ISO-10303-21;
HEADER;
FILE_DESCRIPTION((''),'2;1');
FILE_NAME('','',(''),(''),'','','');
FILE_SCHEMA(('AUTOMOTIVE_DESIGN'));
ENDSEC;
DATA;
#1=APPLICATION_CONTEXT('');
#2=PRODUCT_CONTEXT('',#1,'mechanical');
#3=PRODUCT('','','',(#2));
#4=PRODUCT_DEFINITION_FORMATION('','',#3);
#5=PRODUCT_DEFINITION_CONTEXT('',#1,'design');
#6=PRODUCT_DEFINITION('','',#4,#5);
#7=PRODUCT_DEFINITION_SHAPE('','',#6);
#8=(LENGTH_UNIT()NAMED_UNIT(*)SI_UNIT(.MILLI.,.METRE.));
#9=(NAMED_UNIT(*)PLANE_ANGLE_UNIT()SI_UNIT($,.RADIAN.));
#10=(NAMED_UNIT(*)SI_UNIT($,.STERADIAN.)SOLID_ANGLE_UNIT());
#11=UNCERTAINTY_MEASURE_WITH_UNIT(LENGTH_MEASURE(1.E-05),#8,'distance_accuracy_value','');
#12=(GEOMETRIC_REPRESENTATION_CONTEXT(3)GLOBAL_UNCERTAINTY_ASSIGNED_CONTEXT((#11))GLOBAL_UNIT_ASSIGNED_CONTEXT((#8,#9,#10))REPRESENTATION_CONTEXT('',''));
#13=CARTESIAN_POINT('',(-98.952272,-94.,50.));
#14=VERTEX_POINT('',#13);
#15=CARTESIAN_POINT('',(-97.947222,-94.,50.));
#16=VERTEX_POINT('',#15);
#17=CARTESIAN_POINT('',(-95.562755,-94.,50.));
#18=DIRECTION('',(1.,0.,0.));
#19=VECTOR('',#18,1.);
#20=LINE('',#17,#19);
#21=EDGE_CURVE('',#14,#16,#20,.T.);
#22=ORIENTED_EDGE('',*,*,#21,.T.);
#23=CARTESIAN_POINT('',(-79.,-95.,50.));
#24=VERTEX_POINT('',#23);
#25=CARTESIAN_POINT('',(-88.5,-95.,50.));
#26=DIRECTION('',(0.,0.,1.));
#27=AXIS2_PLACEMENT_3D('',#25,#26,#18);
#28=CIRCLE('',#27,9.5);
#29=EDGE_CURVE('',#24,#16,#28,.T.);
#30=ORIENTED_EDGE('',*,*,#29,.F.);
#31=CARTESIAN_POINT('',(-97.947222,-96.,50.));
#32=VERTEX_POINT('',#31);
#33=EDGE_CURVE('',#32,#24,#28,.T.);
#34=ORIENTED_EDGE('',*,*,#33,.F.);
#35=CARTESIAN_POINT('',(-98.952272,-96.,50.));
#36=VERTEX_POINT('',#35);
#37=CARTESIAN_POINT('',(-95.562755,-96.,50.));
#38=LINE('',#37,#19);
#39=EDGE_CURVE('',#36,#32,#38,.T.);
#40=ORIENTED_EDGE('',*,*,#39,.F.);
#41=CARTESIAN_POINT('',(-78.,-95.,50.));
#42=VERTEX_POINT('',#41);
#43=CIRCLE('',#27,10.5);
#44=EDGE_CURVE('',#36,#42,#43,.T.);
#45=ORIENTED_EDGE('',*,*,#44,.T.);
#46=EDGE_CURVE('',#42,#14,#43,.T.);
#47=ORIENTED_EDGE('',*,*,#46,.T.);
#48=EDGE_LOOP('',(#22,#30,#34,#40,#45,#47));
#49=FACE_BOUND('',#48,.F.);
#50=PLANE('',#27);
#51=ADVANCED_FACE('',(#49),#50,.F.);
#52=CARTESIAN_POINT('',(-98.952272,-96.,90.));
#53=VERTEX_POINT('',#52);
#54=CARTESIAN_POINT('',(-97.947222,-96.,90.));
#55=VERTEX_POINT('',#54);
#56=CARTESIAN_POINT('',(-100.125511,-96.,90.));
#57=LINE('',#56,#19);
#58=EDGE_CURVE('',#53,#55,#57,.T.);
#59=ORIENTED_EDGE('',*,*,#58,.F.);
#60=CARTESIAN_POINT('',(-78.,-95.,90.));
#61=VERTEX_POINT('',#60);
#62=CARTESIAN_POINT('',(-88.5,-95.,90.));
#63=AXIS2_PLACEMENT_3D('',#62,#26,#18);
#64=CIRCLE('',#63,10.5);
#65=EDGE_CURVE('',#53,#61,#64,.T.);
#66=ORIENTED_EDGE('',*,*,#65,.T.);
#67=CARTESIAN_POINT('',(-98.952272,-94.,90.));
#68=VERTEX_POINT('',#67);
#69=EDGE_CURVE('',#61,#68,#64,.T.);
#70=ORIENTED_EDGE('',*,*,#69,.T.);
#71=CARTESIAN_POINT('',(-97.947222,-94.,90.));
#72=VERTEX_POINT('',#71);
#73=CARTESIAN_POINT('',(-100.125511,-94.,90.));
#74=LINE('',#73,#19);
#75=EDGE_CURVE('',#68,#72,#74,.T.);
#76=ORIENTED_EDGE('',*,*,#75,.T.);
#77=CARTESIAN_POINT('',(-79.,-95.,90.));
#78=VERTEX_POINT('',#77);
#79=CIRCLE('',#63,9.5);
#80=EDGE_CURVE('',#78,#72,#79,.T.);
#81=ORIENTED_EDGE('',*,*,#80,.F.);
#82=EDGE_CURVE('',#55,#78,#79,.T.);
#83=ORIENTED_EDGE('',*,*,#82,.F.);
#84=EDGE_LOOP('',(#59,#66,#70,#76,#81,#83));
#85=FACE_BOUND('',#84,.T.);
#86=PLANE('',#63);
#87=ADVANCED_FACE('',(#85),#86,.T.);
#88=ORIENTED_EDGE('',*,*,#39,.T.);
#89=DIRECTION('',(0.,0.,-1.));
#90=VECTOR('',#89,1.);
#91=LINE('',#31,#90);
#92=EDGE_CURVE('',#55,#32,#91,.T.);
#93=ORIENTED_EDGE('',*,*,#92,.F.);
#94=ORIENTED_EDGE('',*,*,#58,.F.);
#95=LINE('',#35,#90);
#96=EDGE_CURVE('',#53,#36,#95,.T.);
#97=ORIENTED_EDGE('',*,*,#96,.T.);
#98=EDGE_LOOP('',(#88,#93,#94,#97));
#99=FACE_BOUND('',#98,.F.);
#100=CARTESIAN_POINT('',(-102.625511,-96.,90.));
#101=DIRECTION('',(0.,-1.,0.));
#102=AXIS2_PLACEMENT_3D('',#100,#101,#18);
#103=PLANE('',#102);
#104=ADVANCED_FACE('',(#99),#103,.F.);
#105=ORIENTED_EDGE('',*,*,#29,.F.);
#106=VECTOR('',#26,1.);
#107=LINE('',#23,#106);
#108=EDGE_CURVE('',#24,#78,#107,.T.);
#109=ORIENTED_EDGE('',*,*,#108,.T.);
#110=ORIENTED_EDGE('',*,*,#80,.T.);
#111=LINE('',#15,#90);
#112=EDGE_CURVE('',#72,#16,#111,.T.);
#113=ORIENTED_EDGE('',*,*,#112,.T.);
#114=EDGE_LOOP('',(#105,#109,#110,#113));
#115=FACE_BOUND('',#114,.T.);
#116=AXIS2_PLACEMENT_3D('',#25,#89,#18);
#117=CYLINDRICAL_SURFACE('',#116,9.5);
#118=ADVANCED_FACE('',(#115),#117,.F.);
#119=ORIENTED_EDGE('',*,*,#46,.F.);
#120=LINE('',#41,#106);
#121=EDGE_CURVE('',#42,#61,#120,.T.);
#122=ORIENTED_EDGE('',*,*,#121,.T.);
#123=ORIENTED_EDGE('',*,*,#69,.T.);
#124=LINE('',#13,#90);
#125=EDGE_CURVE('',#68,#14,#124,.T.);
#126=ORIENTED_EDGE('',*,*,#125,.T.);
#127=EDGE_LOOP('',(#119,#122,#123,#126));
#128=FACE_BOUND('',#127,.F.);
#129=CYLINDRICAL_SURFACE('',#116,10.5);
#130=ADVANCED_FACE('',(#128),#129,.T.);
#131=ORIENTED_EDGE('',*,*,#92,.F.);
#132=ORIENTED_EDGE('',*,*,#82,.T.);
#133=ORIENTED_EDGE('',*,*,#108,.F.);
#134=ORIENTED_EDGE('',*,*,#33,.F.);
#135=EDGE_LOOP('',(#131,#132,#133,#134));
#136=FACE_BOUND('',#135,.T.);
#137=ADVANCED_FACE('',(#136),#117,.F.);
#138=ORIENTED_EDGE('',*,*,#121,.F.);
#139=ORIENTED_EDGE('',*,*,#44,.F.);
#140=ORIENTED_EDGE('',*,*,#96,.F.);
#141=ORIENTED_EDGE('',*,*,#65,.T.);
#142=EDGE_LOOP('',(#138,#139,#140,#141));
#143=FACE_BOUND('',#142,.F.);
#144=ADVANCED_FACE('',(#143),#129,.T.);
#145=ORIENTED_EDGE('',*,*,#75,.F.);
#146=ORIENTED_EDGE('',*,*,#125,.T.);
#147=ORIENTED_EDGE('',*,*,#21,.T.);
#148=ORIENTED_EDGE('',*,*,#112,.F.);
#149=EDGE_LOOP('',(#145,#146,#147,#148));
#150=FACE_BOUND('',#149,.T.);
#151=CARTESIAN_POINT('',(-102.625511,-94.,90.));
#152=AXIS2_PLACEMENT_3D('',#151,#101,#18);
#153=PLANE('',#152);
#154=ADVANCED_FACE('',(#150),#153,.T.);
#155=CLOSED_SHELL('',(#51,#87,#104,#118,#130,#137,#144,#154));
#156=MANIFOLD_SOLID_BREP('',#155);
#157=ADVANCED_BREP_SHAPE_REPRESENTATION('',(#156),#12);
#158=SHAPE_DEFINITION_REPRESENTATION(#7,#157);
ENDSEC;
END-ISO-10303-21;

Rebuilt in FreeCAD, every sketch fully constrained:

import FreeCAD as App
import Part
import Sketcher

V = App.Vector

doc = App.newDocument("Part")
body = doc.addObject("PartDesign::Body", "Body")

sketch1 = doc.addObject("Sketcher::SketchObject", "Sketch")
body.addObject(sketch1)
sketch1.AttachmentSupport = (doc.XY_Plane, [""])
sketch1.MapMode = "FlatFace"
sketch1.addGeometry(Part.Circle(V(-88, -95, 0), V(0, 0, 1), 10), False)
sketch1.addGeometry(Part.Circle(V(-88, -95, 0), V(0, 0, 1), 10), False)
sketch1.addConstraint(Sketcher.Constraint("Coincident", 1, 3, 0, 3))
sketch1.addConstraint(Sketcher.Constraint("Diameter", 0, 21.0))
sketch1.addConstraint(Sketcher.Constraint("Diameter", 1, 19.0))
sketch1.addConstraint(Sketcher.Constraint("DistanceY", 0, 3, -1, 1, 95.0))
sketch1.addConstraint(Sketcher.Constraint("DistanceX", 0, 3, -1, 1, 88.5))
pad1 = doc.addObject("PartDesign::Pad", "Pad")
body.addObject(pad1)
pad1.Profile = sketch1
pad1.Length = 40

sketch2 = doc.addObject("Sketcher::SketchObject", "Sketch001")
body.addObject(sketch2)
sketch2.AttachmentSupport = (doc.XY_Plane, [""])
sketch2.MapMode = "FlatFace"
sketch2.AttachmentOffset = App.Placement(V(0, 0, 40), App.Rotation())
sketch2.addGeometry(Part.LineSegment(V(-102.6, -94, 0), V(-102.6, -96, 0)), False)
sketch2.addGeometry(Part.LineSegment(V(-102.6, -96, 0), V(-97.6, -96, 0)), False)
sketch2.addGeometry(Part.LineSegment(V(-97.6, -96, 0), V(-97.6, -94, 0)), False)
sketch2.addGeometry(Part.LineSegment(V(-97.6, -94, 0), V(-102.6, -94, 0)), False)
sketch2.addConstraint(Sketcher.Constraint("Coincident", 0, 2, 1, 1))
sketch2.addConstraint(Sketcher.Constraint("Coincident", 1, 2, 2, 1))
sketch2.addConstraint(Sketcher.Constraint("Coincident", 2, 2, 3, 1))
sketch2.addConstraint(Sketcher.Constraint("Coincident", 3, 2, 0, 1))
sketch2.addConstraint(Sketcher.Constraint("Vertical", 0))
sketch2.addConstraint(Sketcher.Constraint("Horizontal", 1))
sketch2.addConstraint(Sketcher.Constraint("Vertical", 2))
sketch2.addConstraint(Sketcher.Constraint("Horizontal", 3))
sketch2.addConstraint(Sketcher.Constraint("DistanceX", 1, 1, 1, 2, 5.0))
sketch2.addConstraint(Sketcher.Constraint("DistanceY", 0, 2, 0, 1, 2.0))
sketch2.addConstraint(Sketcher.Constraint("DistanceY", 0, 2, -1, 1, 96.0))
sketch2.addConstraint(Sketcher.Constraint("DistanceX", 0, 2, -1, 1, 102.625511))
pocket1 = doc.addObject("PartDesign::Pocket", "Pocket")
body.addObject(pocket1)
pocket1.Profile = sketch2
pocket1.Type = "ThroughAll"
body2 = doc.addObject("PartDesign::Body", "Body001")
doc.recompute()

body.Placement = App.Placement(V(0, 0, 50), App.Rotation(V(0, 0, 1), 0))
boolean = doc.addObject("PartDesign::Boolean", "Boolean")
body2.addObject(boolean)
boolean.Type = "Fuse"
boolean.addObjects([body])

doc.recompute()
